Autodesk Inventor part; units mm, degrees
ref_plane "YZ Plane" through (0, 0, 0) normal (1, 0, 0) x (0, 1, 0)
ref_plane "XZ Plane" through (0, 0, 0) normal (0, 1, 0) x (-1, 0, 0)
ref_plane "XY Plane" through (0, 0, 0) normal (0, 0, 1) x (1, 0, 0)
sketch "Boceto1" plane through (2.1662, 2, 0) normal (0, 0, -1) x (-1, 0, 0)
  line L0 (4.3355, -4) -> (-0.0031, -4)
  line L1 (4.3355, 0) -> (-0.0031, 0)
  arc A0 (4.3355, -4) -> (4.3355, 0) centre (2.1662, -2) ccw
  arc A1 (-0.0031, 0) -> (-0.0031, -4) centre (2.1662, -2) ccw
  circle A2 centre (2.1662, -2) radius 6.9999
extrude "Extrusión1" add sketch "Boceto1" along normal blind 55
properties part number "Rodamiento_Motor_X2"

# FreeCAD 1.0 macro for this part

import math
import FreeCAD as App
import Part
import Sketcher

V = App.Vector

doc = App.newDocument("Part")
body = doc.addObject("PartDesign::Body", "Body")

# Sketch on XY plane
sketch1 = body.newObject("Sketcher::SketchObject", "Sketch")
sketch1.AttachmentSupport = (doc.getObject("XY_Plane"), [""])
sketch1.MapMode = "FlatFace"
sketch1.addGeometry(Part.Circle(V(0, 0, 0), V(0, 0, 1), 7), False)
sketch1.addGeometry(Part.ArcOfCircle(Part.Circle(V(0, 0, 0), V(0, 0, 1), 3), math.radians(137), math.radians(223)), False)
sketch1.addGeometry(Part.LineSegment(V(-2.2, -2, 0), V(2.2, -2, 0)), False)
sketch1.addGeometry(Part.ArcOfCircle(Part.Circle(V(0, 0, 0), V(0, 0, 1), 3), math.radians(-43), math.radians(43)), False)
sketch1.addGeometry(Part.LineSegment(V(2.2, 2, 0), V(-2.2, 2, 0)), False)
sketch1.addConstraint(Sketcher.Constraint("Coincident", 1, 2, 2, 1))
sketch1.addConstraint(Sketcher.Constraint("Coincident", 2, 2, 3, 1))
sketch1.addConstraint(Sketcher.Constraint("Coincident", 3, 2, 4, 1))
sketch1.addConstraint(Sketcher.Constraint("Coincident", 4, 2, 1, 1))
sketch1.addConstraint(Sketcher.Constraint("Horizontal", 2))
sketch1.addConstraint(Sketcher.Constraint("Horizontal", 4))
sketch1.addConstraint(Sketcher.Constraint("Coincident", 0, 3, -1, 1))
sketch1.addConstraint(Sketcher.Constraint("Coincident", 1, 3, -1, 1))
sketch1.addConstraint(Sketcher.Constraint("Coincident", 3, 3, -1, 1))
sketch1.addConstraint(Sketcher.Constraint("Equal", 1, 3))
sketch1.addConstraint(Sketcher.Constraint("Vertical", 2, 2, 3, 2))
sketch1.addConstraint(Sketcher.Constraint("DistanceY", 1, 2, -1, 1, 2.0))
sketch1.addConstraint(Sketcher.Constraint("Diameter", 0, 13.9998))
sketch1.addConstraint(Sketcher.Constraint("Radius", 1, 2.9506))
pad1 = body.newObject("PartDesign::Pad", "Pad")
pad1.Profile = sketch1
pad1.Length = 55
pad1.Reversed = True

doc.recompute()
